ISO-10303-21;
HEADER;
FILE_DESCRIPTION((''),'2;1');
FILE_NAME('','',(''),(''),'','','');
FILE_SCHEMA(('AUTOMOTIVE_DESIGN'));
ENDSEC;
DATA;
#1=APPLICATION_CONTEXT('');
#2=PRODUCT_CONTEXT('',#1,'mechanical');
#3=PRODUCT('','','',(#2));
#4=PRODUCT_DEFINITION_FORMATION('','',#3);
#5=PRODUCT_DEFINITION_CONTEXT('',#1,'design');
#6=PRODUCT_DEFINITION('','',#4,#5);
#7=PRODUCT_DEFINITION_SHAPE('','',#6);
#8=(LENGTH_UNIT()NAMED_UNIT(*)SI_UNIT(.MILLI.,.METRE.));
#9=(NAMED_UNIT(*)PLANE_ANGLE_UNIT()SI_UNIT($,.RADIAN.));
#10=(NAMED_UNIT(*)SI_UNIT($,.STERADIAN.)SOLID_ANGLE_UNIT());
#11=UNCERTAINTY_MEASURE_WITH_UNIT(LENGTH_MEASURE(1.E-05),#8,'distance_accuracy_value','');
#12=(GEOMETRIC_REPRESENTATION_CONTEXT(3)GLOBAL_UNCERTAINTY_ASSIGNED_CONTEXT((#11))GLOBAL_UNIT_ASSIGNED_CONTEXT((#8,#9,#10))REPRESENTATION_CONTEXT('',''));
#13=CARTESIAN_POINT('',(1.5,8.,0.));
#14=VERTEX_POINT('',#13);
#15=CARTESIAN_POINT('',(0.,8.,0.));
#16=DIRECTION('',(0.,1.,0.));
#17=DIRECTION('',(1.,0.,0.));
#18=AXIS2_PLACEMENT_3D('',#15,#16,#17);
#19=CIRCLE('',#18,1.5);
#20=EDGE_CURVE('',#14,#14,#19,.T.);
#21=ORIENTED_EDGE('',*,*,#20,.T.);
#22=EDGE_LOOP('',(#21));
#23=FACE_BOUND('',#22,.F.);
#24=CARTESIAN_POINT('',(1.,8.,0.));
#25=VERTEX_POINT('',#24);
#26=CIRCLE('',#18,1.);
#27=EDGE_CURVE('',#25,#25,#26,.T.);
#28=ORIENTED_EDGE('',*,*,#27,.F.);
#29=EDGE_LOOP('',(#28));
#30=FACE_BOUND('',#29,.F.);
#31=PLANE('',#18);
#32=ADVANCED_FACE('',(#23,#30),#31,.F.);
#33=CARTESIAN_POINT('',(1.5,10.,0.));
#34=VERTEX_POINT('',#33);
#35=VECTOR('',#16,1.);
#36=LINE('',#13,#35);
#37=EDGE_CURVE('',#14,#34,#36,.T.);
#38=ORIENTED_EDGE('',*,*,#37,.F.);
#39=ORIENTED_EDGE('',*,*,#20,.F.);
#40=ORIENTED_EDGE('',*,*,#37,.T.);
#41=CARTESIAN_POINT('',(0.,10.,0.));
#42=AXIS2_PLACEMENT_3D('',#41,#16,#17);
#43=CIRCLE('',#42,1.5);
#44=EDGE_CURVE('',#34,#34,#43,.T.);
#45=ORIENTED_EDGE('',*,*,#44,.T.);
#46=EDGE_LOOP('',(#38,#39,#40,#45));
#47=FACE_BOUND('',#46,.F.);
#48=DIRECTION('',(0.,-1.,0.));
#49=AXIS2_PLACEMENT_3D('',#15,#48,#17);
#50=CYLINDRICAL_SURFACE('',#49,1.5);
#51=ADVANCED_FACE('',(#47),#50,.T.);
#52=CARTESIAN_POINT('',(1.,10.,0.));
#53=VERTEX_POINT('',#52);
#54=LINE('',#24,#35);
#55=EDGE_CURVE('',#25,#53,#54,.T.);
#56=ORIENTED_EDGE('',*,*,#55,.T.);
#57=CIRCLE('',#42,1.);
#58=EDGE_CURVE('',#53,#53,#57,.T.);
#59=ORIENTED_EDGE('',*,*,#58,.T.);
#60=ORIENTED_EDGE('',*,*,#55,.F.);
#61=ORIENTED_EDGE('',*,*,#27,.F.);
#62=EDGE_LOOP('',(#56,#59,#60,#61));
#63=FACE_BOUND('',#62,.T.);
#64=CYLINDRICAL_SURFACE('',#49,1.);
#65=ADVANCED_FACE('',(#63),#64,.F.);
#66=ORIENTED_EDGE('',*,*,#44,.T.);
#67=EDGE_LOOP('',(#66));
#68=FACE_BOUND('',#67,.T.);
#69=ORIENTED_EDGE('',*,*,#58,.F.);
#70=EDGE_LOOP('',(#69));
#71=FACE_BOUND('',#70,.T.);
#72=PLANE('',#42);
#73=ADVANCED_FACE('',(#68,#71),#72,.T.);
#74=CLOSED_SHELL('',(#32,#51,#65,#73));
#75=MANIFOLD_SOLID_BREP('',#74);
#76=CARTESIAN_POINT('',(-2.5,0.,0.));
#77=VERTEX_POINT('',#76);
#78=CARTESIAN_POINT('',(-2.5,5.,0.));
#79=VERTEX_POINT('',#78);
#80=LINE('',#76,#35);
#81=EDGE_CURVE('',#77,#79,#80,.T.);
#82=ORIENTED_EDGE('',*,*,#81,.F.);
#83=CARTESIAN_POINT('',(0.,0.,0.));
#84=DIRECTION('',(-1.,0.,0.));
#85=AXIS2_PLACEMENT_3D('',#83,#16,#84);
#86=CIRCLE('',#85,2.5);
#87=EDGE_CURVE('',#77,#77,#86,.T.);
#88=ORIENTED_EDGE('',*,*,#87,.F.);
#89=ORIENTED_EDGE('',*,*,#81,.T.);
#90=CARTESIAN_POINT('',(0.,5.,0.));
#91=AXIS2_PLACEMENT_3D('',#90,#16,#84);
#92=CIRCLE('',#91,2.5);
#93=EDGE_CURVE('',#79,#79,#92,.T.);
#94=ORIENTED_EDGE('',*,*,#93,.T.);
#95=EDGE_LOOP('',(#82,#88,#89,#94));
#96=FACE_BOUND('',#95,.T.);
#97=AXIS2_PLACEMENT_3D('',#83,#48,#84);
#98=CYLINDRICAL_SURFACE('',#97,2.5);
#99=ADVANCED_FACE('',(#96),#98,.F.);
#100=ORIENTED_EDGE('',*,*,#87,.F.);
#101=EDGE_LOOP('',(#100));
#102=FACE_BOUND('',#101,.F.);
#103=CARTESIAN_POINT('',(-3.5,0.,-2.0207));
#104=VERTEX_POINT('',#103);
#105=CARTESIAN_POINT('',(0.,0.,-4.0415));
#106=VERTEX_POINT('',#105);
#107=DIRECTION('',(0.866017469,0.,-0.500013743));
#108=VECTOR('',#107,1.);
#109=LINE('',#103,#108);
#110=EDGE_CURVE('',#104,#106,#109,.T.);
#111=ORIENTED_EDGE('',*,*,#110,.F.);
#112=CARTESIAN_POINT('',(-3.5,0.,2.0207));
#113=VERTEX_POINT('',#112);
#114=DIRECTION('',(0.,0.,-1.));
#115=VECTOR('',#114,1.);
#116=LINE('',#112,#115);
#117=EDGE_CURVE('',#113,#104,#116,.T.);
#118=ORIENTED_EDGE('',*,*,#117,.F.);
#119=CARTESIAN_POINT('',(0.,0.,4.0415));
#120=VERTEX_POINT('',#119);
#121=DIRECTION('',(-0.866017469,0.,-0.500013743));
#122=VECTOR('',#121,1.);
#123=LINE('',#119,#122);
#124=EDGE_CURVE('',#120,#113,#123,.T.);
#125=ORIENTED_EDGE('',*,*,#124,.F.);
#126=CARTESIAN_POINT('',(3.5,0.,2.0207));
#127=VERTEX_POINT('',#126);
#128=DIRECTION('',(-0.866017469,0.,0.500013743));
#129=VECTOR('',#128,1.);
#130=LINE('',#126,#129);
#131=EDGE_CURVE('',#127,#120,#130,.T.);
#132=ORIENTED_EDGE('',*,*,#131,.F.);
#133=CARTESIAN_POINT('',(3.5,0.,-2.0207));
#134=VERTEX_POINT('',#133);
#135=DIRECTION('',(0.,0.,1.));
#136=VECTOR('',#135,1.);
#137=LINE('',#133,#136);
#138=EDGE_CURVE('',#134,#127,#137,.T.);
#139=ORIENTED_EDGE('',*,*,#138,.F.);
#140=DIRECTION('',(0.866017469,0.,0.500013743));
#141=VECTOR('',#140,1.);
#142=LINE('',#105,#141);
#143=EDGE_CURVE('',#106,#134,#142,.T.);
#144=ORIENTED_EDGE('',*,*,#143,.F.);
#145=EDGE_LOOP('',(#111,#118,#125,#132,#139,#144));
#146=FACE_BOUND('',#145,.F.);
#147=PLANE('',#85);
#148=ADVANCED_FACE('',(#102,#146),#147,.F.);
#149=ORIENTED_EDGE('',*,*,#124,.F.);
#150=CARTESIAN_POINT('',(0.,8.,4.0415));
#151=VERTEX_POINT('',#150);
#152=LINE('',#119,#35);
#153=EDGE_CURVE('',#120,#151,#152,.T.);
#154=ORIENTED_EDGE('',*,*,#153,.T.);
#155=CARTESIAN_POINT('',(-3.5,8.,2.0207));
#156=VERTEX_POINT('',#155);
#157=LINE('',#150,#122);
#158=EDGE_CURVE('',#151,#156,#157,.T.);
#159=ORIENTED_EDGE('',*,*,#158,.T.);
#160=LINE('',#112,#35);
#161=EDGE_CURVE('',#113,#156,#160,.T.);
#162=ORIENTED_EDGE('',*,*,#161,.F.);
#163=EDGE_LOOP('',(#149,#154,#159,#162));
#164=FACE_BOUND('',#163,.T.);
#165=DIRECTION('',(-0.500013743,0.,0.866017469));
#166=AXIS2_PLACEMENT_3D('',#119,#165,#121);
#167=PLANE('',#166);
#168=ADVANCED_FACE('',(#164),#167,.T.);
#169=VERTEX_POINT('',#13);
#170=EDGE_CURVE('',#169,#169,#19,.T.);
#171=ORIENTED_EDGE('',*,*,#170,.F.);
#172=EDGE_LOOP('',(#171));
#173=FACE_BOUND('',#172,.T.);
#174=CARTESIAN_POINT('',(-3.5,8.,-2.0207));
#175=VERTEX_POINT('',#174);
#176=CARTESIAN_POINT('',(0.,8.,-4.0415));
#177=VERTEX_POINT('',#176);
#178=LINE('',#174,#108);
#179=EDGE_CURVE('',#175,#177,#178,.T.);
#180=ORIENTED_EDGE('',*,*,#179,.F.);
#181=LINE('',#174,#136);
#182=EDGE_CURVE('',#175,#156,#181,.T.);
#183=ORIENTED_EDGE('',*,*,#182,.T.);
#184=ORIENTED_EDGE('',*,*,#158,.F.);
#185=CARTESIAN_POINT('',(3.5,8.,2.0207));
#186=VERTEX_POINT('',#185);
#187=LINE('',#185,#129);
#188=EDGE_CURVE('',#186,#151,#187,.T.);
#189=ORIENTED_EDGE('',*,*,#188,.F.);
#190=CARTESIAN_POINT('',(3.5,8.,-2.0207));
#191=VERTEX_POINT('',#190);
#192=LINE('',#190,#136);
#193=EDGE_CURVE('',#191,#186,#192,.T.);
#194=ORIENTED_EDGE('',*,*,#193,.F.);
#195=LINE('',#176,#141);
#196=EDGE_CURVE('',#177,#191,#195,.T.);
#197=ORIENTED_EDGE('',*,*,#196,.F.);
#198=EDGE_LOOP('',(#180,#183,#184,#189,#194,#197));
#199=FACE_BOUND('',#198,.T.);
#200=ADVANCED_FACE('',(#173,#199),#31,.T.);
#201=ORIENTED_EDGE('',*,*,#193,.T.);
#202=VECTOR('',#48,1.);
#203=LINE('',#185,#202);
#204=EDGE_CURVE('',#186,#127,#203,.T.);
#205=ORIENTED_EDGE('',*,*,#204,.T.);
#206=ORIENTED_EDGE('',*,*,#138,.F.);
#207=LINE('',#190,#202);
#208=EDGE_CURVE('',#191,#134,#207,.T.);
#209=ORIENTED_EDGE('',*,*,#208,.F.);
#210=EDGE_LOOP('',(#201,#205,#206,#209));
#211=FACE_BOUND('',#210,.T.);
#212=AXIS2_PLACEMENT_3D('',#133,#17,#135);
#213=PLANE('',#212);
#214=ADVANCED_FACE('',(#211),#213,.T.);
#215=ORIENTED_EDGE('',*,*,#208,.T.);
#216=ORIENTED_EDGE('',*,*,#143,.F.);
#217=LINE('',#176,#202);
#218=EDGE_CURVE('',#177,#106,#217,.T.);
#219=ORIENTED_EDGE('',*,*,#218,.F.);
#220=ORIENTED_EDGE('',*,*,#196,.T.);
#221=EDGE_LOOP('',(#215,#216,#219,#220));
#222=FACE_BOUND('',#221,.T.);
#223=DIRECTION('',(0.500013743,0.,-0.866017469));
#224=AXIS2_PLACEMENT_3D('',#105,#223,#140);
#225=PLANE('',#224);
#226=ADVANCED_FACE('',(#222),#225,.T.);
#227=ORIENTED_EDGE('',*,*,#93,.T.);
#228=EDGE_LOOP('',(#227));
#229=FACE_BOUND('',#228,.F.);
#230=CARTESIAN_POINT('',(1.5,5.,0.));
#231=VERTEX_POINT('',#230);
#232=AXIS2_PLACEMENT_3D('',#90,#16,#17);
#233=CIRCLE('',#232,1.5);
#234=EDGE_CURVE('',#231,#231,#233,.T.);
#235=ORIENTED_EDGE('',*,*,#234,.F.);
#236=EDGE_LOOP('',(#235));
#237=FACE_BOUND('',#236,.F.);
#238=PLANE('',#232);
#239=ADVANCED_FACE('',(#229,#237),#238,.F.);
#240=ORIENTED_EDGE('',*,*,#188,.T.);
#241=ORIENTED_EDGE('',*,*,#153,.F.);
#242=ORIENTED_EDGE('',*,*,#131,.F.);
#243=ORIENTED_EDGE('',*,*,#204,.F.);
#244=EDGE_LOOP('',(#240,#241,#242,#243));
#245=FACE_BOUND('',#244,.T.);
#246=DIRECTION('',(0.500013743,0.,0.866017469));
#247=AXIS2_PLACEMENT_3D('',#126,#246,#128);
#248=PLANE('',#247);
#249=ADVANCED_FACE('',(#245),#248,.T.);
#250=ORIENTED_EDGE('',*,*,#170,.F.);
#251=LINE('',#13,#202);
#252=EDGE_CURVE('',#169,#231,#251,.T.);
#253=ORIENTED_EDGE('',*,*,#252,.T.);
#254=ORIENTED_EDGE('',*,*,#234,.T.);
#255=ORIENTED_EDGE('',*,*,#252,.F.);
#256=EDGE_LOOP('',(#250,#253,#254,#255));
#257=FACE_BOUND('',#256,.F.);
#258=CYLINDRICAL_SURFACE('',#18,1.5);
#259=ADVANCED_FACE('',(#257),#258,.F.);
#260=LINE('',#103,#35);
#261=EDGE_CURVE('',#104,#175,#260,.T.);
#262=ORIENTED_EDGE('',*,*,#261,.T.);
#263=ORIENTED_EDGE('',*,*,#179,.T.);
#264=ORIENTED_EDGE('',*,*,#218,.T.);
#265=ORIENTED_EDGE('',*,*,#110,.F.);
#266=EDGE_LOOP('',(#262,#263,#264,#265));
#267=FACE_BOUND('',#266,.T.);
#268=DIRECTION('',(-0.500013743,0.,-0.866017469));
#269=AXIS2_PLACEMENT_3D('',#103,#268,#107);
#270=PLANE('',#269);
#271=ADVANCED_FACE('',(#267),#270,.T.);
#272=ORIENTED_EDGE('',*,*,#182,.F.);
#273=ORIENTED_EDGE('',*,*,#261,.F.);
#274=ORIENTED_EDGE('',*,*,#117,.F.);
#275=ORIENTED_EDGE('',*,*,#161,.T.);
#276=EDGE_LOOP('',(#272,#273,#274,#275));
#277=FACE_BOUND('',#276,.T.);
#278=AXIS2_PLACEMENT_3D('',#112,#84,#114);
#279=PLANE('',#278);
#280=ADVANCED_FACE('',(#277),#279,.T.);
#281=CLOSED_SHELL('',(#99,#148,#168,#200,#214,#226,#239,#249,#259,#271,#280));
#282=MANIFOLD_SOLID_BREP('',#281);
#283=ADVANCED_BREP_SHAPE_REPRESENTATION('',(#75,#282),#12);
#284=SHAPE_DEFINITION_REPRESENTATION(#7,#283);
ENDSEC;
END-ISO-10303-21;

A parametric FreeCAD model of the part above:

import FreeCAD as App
import Part
import Sketcher
from FreeCAD import Vector
Q = App.Units.Quantity

doc = App.newDocument("Part")
body = doc.addObject("PartDesign::Body", "Body")
body.AllowCompound = True

# Sketch on XZ plane
sketch1 = body.newObject("Sketcher::SketchObject", "Sketch")
sketch1.AttachmentSupport = (doc.getObject("XZ_Plane"), [""])
sketch1.MapMode = "FlatFace"
sketch1.addGeometry([
    Part.LineSegment(Vector(0, -4, 0), Vector(-3.5, -2, 0)),  # 0
    Part.LineSegment(Vector(-3.5, -2, 0), Vector(-3.5, 2, 0)),  # 1
    Part.LineSegment(Vector(-3.5, 2, 0), Vector(0, 4, 0)),  # 2
    Part.LineSegment(Vector(0, 4, 0), Vector(3.5, 2, 0)),  # 3
    Part.LineSegment(Vector(3.5, 2, 0), Vector(3.5, -2, 0)),  # 4
    Part.LineSegment(Vector(3.5, -2, 0), Vector(0, -4, 0)),  # 5
    Part.Circle(Vector(0, 0, 0), Vector(0, 0, 1), 2.5),  # 6
], False)
sketch1.addConstraint([
    Sketcher.Constraint("Coincident", 0, 2, 1, 1),
    Sketcher.Constraint("Coincident", 1, 2, 2, 1),
    Sketcher.Constraint("Coincident", 2, 2, 3, 1),
    Sketcher.Constraint("Coincident", 3, 2, 4, 1),
    Sketcher.Constraint("Coincident", 4, 2, 5, 1),
    Sketcher.Constraint("Coincident", 5, 2, 0, 1),
    Sketcher.Constraint("Vertical", 1),
    Sketcher.Constraint("Vertical", 4),
    Sketcher.Constraint("Coincident", 6, 3, -1, 1),
    Sketcher.Constraint("Symmetric", 0, 2, 3, 2, -1, 1),
    Sketcher.Constraint("Symmetric", 2, 2, 5, 2, -1, 1),
    Sketcher.Constraint("PointOnObject", 2, 2, -2),
    Sketcher.Constraint("Parallel", 2, 5),
    Sketcher.Constraint("Horizontal", 1, 2, 3, 2),
    Sketcher.Constraint("Diameter", 6, Q("5 mm")),
    Sketcher.Constraint("Angle", 0, Q("149.999 deg")),
    Sketcher.Constraint("DistanceX", 1, 2, 3, 2, Q("7 mm")),
    Sketcher.Constraint("DistanceY", 1, 1, 1, 2, Q("4.0414 mm")),
])
pad1 = body.newObject("PartDesign::Pad", "Pad")
pad1.Profile = sketch1
pad1.Length = 5
pad1.Reversed = True

# Sketch on XZ plane
sketch2 = body.newObject("Sketcher::SketchObject", "Sketch001")
sketch2.AttachmentSupport = (doc.getObject("XZ_Plane"), [""])
sketch2.MapMode = "FlatFace"
sketch2.AttachmentOffset = App.Placement(Vector(0, 0, -5), App.Rotation())
sketch2.addGeometry([
    Part.LineSegment(Vector(0, -4, 0), Vector(-3.5, -2, 0)),  # 0
    Part.LineSegment(Vector(-3.5, -2, 0), Vector(-3.5, 2, 0)),  # 1
    Part.LineSegment(Vector(-3.5, 2, 0), Vector(0, 4, 0)),  # 2
    Part.LineSegment(Vector(0, 4, 0), Vector(3.5, 2, 0)),  # 3
    Part.LineSegment(Vector(3.5, 2, 0), Vector(3.5, -2, 0)),  # 4
    Part.LineSegment(Vector(3.5, -2, 0), Vector(0, -4, 0)),  # 5
], False)
sketch2.addConstraint([
    Sketcher.Constraint("Coincident", 0, 2, 1, 1),
    Sketcher.Constraint("Coincident", 1, 2, 2, 1),
    Sketcher.Constraint("Coincident", 2, 2, 3, 1),
    Sketcher.Constraint("Coincident", 3, 2, 4, 1),
    Sketcher.Constraint("Coincident", 4, 2, 5, 1),
    Sketcher.Constraint("Coincident", 5, 2, 0, 1),
    Sketcher.Constraint("Vertical", 1),
    Sketcher.Constraint("Vertical", 4),
    Sketcher.Constraint("Symmetric", 0, 2, 3, 2, -1, 1),
    Sketcher.Constraint("Symmetric", 2, 2, 5, 2, -1, 1),
    Sketcher.Constraint("PointOnObject", 2, 2, -2),
    Sketcher.Constraint("Parallel", 2, 5),
    Sketcher.Constraint("Horizontal", 1, 2, 3, 2),
    Sketcher.Constraint("Angle", 0, Q("149.999 deg")),
    Sketcher.Constraint("DistanceX", 1, 2, 3, 2, Q("7 mm")),
    Sketcher.Constraint("DistanceY", 1, 1, 1, 2, Q("4.0414 mm")),
])
pad2 = body.newObject("PartDesign::Pad", "Pad001")
pad2.Profile = sketch2
pad2.Length = 3
pad2.Reversed = True

# Sketch on XZ plane
sketch3 = body.newObject("Sketcher::SketchObject", "Sketch002")
sketch3.AttachmentSupport = (doc.getObject("XZ_Plane"), [""])
sketch3.MapMode = "FlatFace"
sketch3.AttachmentOffset = App.Placement(Vector(0, 0, -8), App.Rotation())
sketch3.addGeometry([
    Part.Circle(Vector(0, 0, 0), Vector(0, 0, 1), 1.5),
    Part.Circle(Vector(0, 0, 0), Vector(0, 0, 1), 1),
], False)
sketch3.addConstraint([
    Sketcher.Constraint("Coincident", 0, 3, -1, 1),
    Sketcher.Constraint("Coincident", 1, 3, -1, 1),
    Sketcher.Constraint("Diameter", 0, Q("3 mm")),
    Sketcher.Constraint("Diameter", 1, Q("2 mm")),
])
pad3 = body.newObject("PartDesign::Pad", "Pad002")
pad3.Profile = sketch3
pad3.Length = 2
pad3.Reversed = True

# Sketch on XZ plane
sketch4 = body.newObject("Sketcher::SketchObject", "Sketch003")
sketch4.AttachmentSupport = (doc.getObject("XZ_Plane"), [""])
sketch4.MapMode = "FlatFace"
sketch4.AttachmentOffset = App.Placement(Vector(0, 0, -8), App.Rotation())
sketch4.addGeometry(Part.Circle(Vector(0, 0, 0), Vector(0, 0, 1), 1.5), False)
sketch4.addConstraint([
    Sketcher.Constraint("Coincident", 0, 3, -1, 1),
    Sketcher.Constraint("Diameter", 0, Q("3 mm")),
])
pocket1 = body.newObject("PartDesign::Pocket", "Pocket")
pocket1.Profile = sketch4
pocket1.Type = "UpToFirst"
pocket1.Reversed = True

doc.recompute()
